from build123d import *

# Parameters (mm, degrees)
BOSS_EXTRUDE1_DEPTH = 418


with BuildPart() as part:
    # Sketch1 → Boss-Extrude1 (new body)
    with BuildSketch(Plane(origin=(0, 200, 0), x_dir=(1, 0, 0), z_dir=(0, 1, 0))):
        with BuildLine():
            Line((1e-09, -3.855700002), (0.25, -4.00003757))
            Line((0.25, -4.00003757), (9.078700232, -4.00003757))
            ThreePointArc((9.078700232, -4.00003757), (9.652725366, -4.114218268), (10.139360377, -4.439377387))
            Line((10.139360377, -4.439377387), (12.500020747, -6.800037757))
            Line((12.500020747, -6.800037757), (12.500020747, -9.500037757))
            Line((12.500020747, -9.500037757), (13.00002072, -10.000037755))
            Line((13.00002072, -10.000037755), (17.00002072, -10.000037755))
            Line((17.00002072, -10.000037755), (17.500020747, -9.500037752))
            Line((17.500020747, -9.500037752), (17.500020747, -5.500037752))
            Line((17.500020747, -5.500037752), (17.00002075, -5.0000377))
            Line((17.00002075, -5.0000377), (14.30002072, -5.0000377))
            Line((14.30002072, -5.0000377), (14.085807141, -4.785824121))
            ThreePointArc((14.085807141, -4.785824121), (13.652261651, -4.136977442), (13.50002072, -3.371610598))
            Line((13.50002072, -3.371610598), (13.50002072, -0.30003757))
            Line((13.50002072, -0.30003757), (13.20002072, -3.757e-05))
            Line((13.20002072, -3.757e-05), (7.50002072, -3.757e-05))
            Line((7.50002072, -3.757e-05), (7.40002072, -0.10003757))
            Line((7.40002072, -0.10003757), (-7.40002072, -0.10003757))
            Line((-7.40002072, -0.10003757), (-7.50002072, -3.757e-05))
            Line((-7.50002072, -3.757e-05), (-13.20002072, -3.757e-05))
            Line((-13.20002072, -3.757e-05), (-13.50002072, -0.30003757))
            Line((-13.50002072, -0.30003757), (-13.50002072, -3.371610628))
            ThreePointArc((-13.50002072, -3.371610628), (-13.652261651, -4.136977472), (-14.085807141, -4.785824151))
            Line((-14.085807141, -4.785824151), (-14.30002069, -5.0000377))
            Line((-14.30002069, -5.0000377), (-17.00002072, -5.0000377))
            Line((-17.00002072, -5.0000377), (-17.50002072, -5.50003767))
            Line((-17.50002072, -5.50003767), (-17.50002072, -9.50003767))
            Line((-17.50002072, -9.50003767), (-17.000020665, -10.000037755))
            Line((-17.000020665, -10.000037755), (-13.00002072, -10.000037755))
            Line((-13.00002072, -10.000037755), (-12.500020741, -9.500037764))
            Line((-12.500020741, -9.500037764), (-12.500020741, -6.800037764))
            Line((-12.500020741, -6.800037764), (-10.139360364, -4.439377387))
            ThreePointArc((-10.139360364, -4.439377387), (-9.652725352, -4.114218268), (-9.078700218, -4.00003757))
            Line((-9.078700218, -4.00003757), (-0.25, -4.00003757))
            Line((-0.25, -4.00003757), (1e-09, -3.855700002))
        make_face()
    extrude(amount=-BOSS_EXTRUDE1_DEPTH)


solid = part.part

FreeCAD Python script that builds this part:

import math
import FreeCAD as App
import Part
import Sketcher

V = App.Vector
Q = App.Units.Quantity

doc = App.newDocument("Part")
body = doc.addObject("PartDesign::Body", "Body")

sketch1 = doc.addObject("Sketcher::SketchObject", "Sketch")
body.addObject(sketch1)
sketch1.AttachmentSupport = (doc.XZ_Plane, [""])
sketch1.MapMode = "FlatFace"
sketch1.AttachmentOffset = App.Placement(V(0, 0, -200), App.Rotation())
sketch1.addGeometry([
    Part.LineSegment(V(0, 3.86, 0), V(0.25, 4, 0)),
    Part.LineSegment(V(0.25, 4, 0), V(9.08, 4, 0)),
    Part.ArcOfCircle(Part.Circle(V(9.08, 5.5, 0), V(0, 0, 1), 1.5), math.radians(-90), math.radians(-45)),
    Part.LineSegment(V(10.14, 4.44, 0), V(12.5, 6.8, 0)),
    Part.LineSegment(V(12.5, 6.8, 0), V(12.5, 9.5, 0)),
    Part.LineSegment(V(12.5, 9.5, 0), V(13, 10, 0)),
    Part.LineSegment(V(13, 10, 0), V(17, 10, 0)),
    Part.LineSegment(V(17, 10, 0), V(17.5, 9.5, 0)),
    Part.LineSegment(V(17.5, 9.5, 0), V(17.5, 5.5, 0)),
    Part.LineSegment(V(17.5, 5.5, 0), V(17, 5, 0)),
    Part.LineSegment(V(17, 5, 0), V(14.3, 5, 0)),
    Part.LineSegment(V(14.3, 5, 0), V(14.09, 4.79, 0)),
    Part.ArcOfCircle(Part.Circle(V(15.5, 3.37, 0), V(0, 0, 1), 2), math.radians(135), math.radians(180)),
    Part.LineSegment(V(13.5, 3.37, 0), V(13.5, 0.3, 0)),
    Part.LineSegment(V(13.5, 0.3, 0), V(13.2, 0, 0)),
    Part.LineSegment(V(13.2, 0, 0), V(7.5, 0, 0)),
    Part.LineSegment(V(7.5, 0, 0), V(7.4, 0.1, 0)),
    Part.LineSegment(V(7.4, 0.1, 0), V(-7.4, 0.1, 0)),
    Part.LineSegment(V(-7.4, 0.1, 0), V(-7.5, 0, 0)),
    Part.LineSegment(V(-7.5, 0, 0), V(-13.2, 0, 0)),
    Part.LineSegment(V(-13.2, 0, 0), V(-13.5, 0.3, 0)),
    Part.LineSegment(V(-13.5, 0.3, 0), V(-13.5, 3.37, 0)),
    Part.ArcOfCircle(Part.Circle(V(-15.5, 3.37, 0), V(0, 0, 1), 2), math.radians(0), math.radians(45)),
    Part.LineSegment(V(-14.09, 4.79, 0), V(-14.3, 5, 0)),
    Part.LineSegment(V(-14.3, 5, 0), V(-17, 5, 0)),
    Part.LineSegment(V(-17, 5, 0), V(-17.5, 5.5, 0)),
    Part.LineSegment(V(-17.5, 5.5, 0), V(-17.5, 9.5, 0)),
    Part.LineSegment(V(-17.5, 9.5, 0), V(-17, 10, 0)),
    Part.LineSegment(V(-17, 10, 0), V(-13, 10, 0)),
    Part.LineSegment(V(-13, 10, 0), V(-12.5, 9.5, 0)),
    Part.LineSegment(V(-12.5, 9.5, 0), V(-12.5, 6.8, 0)),
    Part.LineSegment(V(-12.5, 6.8, 0), V(-10.14, 4.44, 0)),
    Part.ArcOfCircle(Part.Circle(V(-9.08, 5.5, 0), V(0, 0, 1), 1.5), math.radians(-135), math.radians(-90)),
    Part.LineSegment(V(-9.08, 4, 0), V(-0.25, 4, 0)),
    Part.LineSegment(V(-0.25, 4, 0), V(0, 3.86, 0)),
], False)
sketch1.addConstraint([
    Sketcher.Constraint("Coincident", 0, 2, 1, 1),
    Sketcher.Constraint("Tangent", 1, 2, 2, 1),
    Sketcher.Constraint("Tangent", 2, 2, 3, 1),
    Sketcher.Constraint("Coincident", 3, 2, 4, 1),
    Sketcher.Constraint("Coincident", 4, 2, 5, 1),
    Sketcher.Constraint("Coincident", 5, 2, 6, 1),
    Sketcher.Constraint("Coincident", 6, 2, 7, 1),
    Sketcher.Constraint("Coincident", 7, 2, 8, 1),
    Sketcher.Constraint("Coincident", 8, 2, 9, 1),
    Sketcher.Constraint("Coincident", 9, 2, 10, 1),
    Sketcher.Constraint("Coincident", 10, 2, 11, 1),
    Sketcher.Constraint("Tangent", 11, 2, 12, 1),
    Sketcher.Constraint("Tangent", 12, 2, 13, 1),
    Sketcher.Constraint("Coincident", 13, 2, 14, 1),
    Sketcher.Constraint("Coincident", 14, 2, 15, 1),
    Sketcher.Constraint("Coincident", 15, 2, 16, 1),
    Sketcher.Constraint("Coincident", 16, 2, 17, 1),
    Sketcher.Constraint("Coincident", 17, 2, 18, 1),
    Sketcher.Constraint("Coincident", 18, 2, 19, 1),
    Sketcher.Constraint("Coincident", 19, 2, 20, 1),
    Sketcher.Constraint("Coincident", 20, 2, 21, 1),
    Sketcher.Constraint("Tangent", 21, 2, 22, 1),
    Sketcher.Constraint("Tangent", 22, 2, 23, 1),
    Sketcher.Constraint("Coincident", 23, 2, 24, 1),
    Sketcher.Constraint("Coincident", 24, 2, 25, 1),
    Sketcher.Constraint("Coincident", 25, 2, 26, 1),
    Sketcher.Constraint("Coincident", 26, 2, 27, 1),
    Sketcher.Constraint("Coincident", 27, 2, 28, 1),
    Sketcher.Constraint("Coincident", 28, 2, 29, 1),
    Sketcher.Constraint("Coincident", 29, 2, 30, 1),
    Sketcher.Constraint("Coincident", 30, 2, 31, 1),
    Sketcher.Constraint("Tangent", 31, 2, 32, 1),
    Sketcher.Constraint("Tangent", 32, 2, 33, 1),
    Sketcher.Constraint("Coincident", 33, 2, 34, 1),
    Sketcher.Constraint("Coincident", 34, 2, 0, 1),
    Sketcher.Constraint("Horizontal", 1),
    Sketcher.Constraint("Vertical", 4),
    Sketcher.Constraint("Horizontal", 6),
    Sketcher.Constraint("Vertical", 8),
    Sketcher.Constraint("Horizontal", 10),
    Sketcher.Constraint("Vertical", 13),
    Sketcher.Constraint("Horizontal", 15),
    Sketcher.Constraint("Horizontal", 17),
    Sketcher.Constraint("Horizontal", 19),
    Sketcher.Constraint("Vertical", 21),
    Sketcher.Constraint("Horizontal", 24),
    Sketcher.Constraint("Vertical", 26),
    Sketcher.Constraint("Horizontal", 28),
    Sketcher.Constraint("Vertical", 30),
    Sketcher.Constraint("Horizontal", 33),
    Sketcher.Constraint("Equal", 12, 22),
    Sketcher.Constraint("Equal", 2, 32),
    Sketcher.Constraint("Symmetric", 12, 3, 22, 3, -2),
    Sketcher.Constraint("Symmetric", 2, 3, 32, 3, -2),
    Sketcher.Constraint("Symmetric", 15, 2, 18, 2, -2),
    Sketcher.Constraint("Symmetric", 10, 2, 23, 2, -2),
    Sketcher.Constraint("Symmetric", 8, 2, 25, 2, -2),
    Sketcher.Constraint("Symmetric", 6, 2, 27, 2, -2),
    Sketcher.Constraint("Symmetric", 4, 2, 29, 2, -2),
    Sketcher.Constraint("PointOnObject", 34, 2, -2),
    Sketcher.Constraint("Parallel", 3, 5),
    Sketcher.Constraint("Perpendicular", 5, 7),
    Sketcher.Constraint("Perpendicular", 7, 9),
    Sketcher.Constraint("Parallel", 9, 11),
    Sketcher.Constraint("Parallel", 11, 14),
    Sketcher.Constraint("Perpendicular", 14, 16),
    Sketcher.Constraint("Perpendicular", 16, 18),
    Sketcher.Constraint("Perpendicular", 18, 20),
    Sketcher.Constraint("Parallel", 20, 23),
    Sketcher.Constraint("Parallel", 23, 25),
    Sketcher.Constraint("Perpendicular", 25, 27),
    Sketcher.Constraint("Perpendicular", 27, 29),
    Sketcher.Constraint("Parallel", 29, 31),
    Sketcher.Constraint("Horizontal", 4, 2, 7, 2),
    Sketcher.Constraint("Horizontal", 32, 3, 8, 2),
    Sketcher.Constraint("Horizontal", 13, 2, 20, 2),
    Sketcher.Constraint("Vertical", 6, 2, 9, 2),
    Sketcher.Constraint("Equal", 1, 33),
    Sketcher.Constraint("Equal", 24, 4),
    Sketcher.Constraint("Equal", 28, 8),
    Sketcher.Constraint("Radius", 12, 2.0),
    Sketcher.Constraint("Radius", 2, 1.5),
    Sketcher.Constraint("DistanceX", 6, 1, 6, 2, 4.0),
    Sketcher.Constraint("Angle", 0, Q("30 deg")),
    Sketcher.Constraint("DistanceX", 10, 2, 10, 1, 2.7),
    Sketcher.Constraint("DistanceX", 15, 2, 15, 1, 5.7),
    Sketcher.Constraint("DistanceX", 3, 2, 12, 3, 3.0),
    Sketcher.Constraint("DistanceX", 4, 2, 7, 2, 5.0),
    Sketcher.Constraint("DistanceY", 14, 2, 10, 2, 5.0),
    Sketcher.Constraint("DistanceX", 15, 2, 13, 2, 6.0),
    Sketcher.Constraint("DistanceX", 16, 2, 15, 2, 0.1),
    Sketcher.Constraint("DistanceX", 33, 2, 0, 2, 0.5),
    Sketcher.Constraint("DistanceX", 1, 1, 1, 2, 8.8287),
    Sketcher.Constraint("DistanceY", -1, 1, 34, 2, 3.8557),
])
pad1 = doc.addObject("PartDesign::Pad", "Pad")
body.addObject(pad1)
pad1.Profile = sketch1
pad1.Length = 418

doc.recompute()
